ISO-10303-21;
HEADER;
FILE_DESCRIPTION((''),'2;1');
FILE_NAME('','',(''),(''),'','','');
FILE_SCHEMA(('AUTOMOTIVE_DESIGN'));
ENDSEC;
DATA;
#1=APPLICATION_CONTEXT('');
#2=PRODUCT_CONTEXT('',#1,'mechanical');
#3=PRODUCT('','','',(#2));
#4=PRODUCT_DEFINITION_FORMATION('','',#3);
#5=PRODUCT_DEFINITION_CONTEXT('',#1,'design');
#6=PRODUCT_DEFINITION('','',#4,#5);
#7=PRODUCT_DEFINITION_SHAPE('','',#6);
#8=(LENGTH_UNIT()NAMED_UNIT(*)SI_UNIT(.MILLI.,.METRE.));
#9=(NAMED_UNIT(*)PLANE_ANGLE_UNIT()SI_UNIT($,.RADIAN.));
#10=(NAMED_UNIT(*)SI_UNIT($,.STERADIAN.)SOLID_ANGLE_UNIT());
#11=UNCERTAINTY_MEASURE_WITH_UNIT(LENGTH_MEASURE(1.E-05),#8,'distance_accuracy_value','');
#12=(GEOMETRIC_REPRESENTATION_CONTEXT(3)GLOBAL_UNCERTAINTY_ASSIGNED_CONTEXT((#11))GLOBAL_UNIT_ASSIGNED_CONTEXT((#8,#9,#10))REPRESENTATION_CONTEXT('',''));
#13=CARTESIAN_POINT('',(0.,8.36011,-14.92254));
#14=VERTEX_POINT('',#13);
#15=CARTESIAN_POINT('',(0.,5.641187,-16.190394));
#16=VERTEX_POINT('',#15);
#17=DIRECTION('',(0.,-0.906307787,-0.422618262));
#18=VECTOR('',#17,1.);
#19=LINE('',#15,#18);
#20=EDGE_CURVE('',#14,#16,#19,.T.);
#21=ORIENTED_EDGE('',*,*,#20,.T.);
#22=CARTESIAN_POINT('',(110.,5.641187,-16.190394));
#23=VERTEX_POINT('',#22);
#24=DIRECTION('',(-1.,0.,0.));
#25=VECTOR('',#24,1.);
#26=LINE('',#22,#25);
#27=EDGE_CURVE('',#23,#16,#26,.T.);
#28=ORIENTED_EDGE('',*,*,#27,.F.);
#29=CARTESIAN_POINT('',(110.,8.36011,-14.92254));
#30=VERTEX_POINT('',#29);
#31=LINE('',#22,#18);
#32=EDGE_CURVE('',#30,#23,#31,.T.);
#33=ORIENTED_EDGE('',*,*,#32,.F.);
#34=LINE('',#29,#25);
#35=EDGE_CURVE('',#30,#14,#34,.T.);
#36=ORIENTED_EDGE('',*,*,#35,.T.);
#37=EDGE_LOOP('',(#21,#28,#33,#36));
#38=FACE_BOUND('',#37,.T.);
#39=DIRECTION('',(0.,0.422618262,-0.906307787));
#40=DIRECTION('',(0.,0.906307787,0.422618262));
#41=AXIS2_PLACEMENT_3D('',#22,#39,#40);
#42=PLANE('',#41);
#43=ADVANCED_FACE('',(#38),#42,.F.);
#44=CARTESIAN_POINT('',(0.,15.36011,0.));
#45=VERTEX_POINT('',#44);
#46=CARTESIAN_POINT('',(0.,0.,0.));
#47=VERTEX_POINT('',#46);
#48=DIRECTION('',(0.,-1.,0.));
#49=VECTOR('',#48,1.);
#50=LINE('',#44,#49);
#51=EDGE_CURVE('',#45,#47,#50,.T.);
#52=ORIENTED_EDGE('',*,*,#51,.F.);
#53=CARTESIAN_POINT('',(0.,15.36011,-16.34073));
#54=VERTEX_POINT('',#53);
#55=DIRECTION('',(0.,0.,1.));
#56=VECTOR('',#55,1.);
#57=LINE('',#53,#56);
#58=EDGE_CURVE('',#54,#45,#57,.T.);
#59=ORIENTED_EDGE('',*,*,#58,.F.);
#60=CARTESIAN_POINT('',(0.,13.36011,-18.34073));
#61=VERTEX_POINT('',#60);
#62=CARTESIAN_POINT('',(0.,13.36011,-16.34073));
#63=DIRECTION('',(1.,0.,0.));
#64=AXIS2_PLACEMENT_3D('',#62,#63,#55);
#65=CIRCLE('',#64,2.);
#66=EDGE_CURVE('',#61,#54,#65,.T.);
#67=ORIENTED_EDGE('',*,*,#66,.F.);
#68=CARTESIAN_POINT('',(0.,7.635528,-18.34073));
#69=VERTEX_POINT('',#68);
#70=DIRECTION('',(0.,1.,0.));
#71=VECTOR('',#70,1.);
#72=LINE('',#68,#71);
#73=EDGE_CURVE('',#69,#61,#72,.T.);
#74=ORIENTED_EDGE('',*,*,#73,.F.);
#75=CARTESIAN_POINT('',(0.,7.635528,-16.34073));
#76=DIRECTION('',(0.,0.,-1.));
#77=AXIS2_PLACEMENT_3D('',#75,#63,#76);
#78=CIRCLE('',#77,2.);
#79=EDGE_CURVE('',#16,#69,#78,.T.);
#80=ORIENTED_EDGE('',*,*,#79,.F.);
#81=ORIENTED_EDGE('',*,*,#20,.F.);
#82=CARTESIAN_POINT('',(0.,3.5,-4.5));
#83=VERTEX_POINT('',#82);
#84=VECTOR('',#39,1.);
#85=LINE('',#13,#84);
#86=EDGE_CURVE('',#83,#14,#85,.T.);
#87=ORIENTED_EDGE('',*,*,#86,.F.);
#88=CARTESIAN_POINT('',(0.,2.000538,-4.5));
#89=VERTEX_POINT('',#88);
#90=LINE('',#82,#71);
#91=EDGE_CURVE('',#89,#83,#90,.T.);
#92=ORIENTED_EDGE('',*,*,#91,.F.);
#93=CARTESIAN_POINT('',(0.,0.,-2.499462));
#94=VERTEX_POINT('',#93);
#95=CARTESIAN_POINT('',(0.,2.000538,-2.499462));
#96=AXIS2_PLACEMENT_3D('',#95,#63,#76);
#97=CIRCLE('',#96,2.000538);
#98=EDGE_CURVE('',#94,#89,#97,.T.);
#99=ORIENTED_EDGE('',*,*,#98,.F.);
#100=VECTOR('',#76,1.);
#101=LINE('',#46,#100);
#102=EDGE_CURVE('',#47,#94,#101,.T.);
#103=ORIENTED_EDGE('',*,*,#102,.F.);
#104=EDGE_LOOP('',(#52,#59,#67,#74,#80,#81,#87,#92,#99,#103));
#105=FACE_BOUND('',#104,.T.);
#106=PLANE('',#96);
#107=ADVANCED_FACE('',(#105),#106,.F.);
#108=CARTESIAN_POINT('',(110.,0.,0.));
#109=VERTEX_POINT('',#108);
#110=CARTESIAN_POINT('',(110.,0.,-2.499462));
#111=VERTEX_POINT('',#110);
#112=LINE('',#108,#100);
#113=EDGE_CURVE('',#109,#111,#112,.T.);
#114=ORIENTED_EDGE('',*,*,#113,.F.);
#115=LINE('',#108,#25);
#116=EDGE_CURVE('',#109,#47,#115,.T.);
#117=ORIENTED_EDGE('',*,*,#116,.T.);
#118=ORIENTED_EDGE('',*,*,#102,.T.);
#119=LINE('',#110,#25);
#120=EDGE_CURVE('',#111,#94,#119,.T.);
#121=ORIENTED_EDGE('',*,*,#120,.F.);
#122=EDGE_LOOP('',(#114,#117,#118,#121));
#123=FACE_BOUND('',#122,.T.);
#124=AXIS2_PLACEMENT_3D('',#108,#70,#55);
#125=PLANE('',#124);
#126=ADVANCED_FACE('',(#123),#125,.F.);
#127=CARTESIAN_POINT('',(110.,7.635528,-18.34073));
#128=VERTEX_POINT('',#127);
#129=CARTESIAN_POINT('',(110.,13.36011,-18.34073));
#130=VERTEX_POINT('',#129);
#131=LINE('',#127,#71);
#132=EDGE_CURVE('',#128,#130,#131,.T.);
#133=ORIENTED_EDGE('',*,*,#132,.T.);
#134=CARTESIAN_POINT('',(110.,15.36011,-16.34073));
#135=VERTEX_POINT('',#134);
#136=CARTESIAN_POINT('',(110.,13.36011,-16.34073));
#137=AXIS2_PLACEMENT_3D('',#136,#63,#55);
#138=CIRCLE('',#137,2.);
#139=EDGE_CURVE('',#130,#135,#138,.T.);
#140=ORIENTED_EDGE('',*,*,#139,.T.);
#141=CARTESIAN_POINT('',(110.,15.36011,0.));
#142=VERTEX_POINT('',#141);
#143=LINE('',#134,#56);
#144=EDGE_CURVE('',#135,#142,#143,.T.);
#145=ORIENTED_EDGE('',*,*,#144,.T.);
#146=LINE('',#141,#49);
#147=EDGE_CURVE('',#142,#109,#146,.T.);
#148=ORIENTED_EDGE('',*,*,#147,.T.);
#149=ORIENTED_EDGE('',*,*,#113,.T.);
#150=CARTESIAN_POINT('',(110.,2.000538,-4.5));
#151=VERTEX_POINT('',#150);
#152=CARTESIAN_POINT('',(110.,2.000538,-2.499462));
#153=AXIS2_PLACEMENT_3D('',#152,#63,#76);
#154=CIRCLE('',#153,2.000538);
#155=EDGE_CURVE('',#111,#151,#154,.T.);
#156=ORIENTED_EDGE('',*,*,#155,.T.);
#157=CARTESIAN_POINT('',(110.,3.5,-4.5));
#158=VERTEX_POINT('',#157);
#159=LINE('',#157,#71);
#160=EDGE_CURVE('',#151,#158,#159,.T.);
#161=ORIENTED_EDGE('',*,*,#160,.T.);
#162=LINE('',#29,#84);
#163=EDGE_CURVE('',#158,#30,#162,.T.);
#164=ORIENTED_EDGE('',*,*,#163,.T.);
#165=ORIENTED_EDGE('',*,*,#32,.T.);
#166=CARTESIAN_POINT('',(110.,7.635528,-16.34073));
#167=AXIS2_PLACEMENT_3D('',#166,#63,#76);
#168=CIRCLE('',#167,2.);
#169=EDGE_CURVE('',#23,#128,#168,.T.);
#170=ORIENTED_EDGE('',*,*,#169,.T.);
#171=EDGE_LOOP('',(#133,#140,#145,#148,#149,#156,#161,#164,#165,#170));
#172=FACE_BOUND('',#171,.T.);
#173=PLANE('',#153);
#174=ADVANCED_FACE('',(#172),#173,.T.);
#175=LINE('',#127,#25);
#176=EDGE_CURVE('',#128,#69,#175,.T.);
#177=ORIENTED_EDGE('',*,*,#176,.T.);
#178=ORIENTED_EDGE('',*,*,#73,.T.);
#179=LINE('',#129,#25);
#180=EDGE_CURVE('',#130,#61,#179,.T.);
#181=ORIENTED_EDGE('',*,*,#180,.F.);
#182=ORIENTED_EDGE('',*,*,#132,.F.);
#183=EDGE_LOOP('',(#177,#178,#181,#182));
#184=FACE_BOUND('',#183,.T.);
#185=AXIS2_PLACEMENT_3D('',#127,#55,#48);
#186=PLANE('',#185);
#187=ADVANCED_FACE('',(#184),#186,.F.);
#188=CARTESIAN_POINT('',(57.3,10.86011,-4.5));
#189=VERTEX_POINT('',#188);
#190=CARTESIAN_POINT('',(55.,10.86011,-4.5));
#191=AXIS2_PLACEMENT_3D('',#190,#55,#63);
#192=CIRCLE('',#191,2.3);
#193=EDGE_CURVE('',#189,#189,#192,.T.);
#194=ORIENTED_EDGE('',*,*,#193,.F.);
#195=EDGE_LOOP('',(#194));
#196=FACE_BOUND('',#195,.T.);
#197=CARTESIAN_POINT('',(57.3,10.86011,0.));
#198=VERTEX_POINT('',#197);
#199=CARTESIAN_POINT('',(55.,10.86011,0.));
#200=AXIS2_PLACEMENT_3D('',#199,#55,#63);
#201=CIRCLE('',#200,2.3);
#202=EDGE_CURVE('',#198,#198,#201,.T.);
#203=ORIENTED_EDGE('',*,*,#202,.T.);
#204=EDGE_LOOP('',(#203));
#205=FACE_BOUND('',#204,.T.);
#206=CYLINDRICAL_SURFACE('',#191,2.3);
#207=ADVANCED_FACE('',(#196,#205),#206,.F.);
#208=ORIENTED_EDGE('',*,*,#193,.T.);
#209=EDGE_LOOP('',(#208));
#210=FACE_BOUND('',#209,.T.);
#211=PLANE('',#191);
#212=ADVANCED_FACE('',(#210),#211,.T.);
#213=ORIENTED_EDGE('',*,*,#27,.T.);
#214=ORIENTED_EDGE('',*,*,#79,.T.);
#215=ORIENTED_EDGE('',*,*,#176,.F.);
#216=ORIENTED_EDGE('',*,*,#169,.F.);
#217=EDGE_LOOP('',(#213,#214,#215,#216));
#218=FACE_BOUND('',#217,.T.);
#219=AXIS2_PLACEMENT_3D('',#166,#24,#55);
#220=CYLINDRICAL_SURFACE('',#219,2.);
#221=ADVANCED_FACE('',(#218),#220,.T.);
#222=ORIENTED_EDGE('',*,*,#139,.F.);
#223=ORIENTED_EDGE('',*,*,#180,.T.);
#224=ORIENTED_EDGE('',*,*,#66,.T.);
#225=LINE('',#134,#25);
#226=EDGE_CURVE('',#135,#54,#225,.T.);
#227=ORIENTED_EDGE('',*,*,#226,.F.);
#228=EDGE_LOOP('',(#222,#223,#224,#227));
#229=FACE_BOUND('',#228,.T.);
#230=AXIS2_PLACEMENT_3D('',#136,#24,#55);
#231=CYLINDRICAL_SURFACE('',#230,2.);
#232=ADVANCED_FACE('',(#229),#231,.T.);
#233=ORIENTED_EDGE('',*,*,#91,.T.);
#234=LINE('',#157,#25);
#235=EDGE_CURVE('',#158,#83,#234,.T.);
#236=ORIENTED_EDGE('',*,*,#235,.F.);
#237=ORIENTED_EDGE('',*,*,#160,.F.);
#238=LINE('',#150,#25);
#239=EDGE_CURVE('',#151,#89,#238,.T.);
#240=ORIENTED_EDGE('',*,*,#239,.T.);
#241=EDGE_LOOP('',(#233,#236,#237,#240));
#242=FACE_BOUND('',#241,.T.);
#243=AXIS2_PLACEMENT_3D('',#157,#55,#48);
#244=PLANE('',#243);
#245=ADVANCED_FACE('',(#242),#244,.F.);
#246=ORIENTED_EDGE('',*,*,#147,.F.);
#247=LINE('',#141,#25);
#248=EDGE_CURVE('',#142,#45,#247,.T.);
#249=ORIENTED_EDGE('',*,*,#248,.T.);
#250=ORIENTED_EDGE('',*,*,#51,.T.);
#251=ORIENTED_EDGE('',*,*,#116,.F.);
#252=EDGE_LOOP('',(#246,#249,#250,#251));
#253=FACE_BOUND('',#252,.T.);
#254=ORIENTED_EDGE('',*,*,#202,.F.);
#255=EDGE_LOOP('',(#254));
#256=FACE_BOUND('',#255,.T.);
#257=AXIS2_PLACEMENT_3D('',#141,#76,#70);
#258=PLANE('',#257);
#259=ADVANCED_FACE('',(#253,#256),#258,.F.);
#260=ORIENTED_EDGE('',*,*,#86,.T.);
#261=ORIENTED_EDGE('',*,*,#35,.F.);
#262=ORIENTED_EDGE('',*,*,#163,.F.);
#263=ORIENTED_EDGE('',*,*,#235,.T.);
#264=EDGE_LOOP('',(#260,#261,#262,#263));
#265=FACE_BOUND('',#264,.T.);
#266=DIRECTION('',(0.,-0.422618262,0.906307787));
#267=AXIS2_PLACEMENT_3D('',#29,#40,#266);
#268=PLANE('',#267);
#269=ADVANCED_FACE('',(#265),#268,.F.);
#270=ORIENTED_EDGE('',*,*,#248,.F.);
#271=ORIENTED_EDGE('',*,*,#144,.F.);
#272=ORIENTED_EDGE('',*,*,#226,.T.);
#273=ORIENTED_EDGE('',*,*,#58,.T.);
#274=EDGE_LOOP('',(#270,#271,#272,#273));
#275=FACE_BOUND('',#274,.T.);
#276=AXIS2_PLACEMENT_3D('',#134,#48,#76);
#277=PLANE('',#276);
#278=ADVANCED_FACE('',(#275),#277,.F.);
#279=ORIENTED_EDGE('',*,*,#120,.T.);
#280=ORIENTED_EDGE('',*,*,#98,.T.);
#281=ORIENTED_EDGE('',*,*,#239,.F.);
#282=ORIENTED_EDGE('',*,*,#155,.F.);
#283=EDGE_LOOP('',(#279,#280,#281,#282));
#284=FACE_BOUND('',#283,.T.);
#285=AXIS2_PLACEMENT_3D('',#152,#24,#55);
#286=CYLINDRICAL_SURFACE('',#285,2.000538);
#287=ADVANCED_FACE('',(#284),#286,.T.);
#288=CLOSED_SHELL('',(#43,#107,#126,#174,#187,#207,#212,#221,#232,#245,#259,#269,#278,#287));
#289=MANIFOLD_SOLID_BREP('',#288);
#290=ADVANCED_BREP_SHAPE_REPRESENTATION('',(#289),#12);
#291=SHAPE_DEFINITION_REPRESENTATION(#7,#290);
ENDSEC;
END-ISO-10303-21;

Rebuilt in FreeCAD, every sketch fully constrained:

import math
import FreeCAD as App
import Part
import Sketcher

V = App.Vector
Q = App.Units.Quantity

doc = App.newDocument("Part")
body = doc.addObject("PartDesign::Body", "Body")

# Sketch on YZ plane
sketch1 = doc.addObject("Sketcher::SketchObject", "Sketch")
body.addObject(sketch1)
sketch1.AttachmentSupport = (doc.YZ_Plane, [""])
sketch1.MapMode = "FlatFace"
sketch1.addGeometry(Part.LineSegment(V(0, 0, 0), V(0, -2.5, 0)), False)
sketch1.addGeometry(Part.ArcOfCircle(Part.Circle(V(2, -2.5, 0), V(0, 0, 1), 2), math.radians(180), math.radians(270)), False)
sketch1.addGeometry(Part.LineSegment(V(2, -4.5, 0), V(3.5, -4.5, 0)), False)
sketch1.addGeometry(Part.LineSegment(V(3.5, -4.5, 0), V(8.4, -14.9, 0)), False)
sketch1.addGeometry(Part.LineSegment(V(8.4, -14.9, 0), V(5.6, -16.2, 0)), False)
sketch1.addGeometry(Part.ArcOfCircle(Part.Circle(V(7.6, -16.3, 0), V(0, 0, 1), 2), math.radians(176), math.radians(270)), False)
sketch1.addGeometry(Part.LineSegment(V(7.6, -18.3, 0), V(13.4, -18.3, 0)), False)
sketch1.addGeometry(Part.ArcOfCircle(Part.Circle(V(13.4, -16.3, 0), V(0, 0, 1), 2), math.radians(-90), math.radians(0)), False)
sketch1.addGeometry(Part.LineSegment(V(15.4, -16.3, 0), V(15.4, 0, 0)), False)
sketch1.addGeometry(Part.LineSegment(V(15.4, 0, 0), V(0, 0, 0)), False)
sketch1.addConstraint(Sketcher.Constraint("Tangent", 0, 2, 1, 1))
sketch1.addConstraint(Sketcher.Constraint("Tangent", 1, 2, 2, 1))
sketch1.addConstraint(Sketcher.Constraint("Coincident", 2, 2, 3, 1))
sketch1.addConstraint(Sketcher.Constraint("Coincident", 3, 2, 4, 1))
sketch1.addConstraint(Sketcher.Constraint("Coincident", 4, 2, 5, 1))
sketch1.addConstraint(Sketcher.Constraint("Tangent", 5, 2, 6, 1))
sketch1.addConstraint(Sketcher.Constraint("Tangent", 6, 2, 7, 1))
sketch1.addConstraint(Sketcher.Constraint("Tangent", 7, 2, 8, 1))
sketch1.addConstraint(Sketcher.Constraint("Coincident", 8, 2, 9, 1))
sketch1.addConstraint(Sketcher.Constraint("Coincident", 9, 2, 0, 1))
sketch1.addConstraint(Sketcher.Constraint("Vertical", 0))
sketch1.addConstraint(Sketcher.Constraint("Horizontal", 2))
sketch1.addConstraint(Sketcher.Constraint("Horizontal", 6))
sketch1.addConstraint(Sketcher.Constraint("Vertical", 8))
sketch1.addConstraint(Sketcher.Constraint("Horizontal", 9))
sketch1.addConstraint(Sketcher.Constraint("Coincident", 9, 2, -1, 1))
sketch1.addConstraint(Sketcher.Constraint("Equal", 5, 7))
sketch1.addConstraint(Sketcher.Constraint("Perpendicular", 3, 4))
sketch1.addConstraint(Sketcher.Constraint("Radius", 5, 2.0))
sketch1.addConstraint(Sketcher.Constraint("Angle", 3, Q("-65 deg")))
sketch1.addConstraint(Sketcher.Constraint("Distance", 4, 3.0))
sketch1.addConstraint(Sketcher.Constraint("DistanceX", 3, 2, 7, 3, 5.0))
sketch1.addConstraint(Sketcher.Constraint("Distance", 3, 11.5))
sketch1.addConstraint(Sketcher.Constraint("DistanceY", 1, 2, -1, 1, 4.5))
sketch1.addConstraint(Sketcher.Constraint("DistanceX", -1, 1, 2, 2, 3.5))
sketch1.addConstraint(Sketcher.Constraint("Radius", 1, 2.000538))
sketch1.addConstraint(Sketcher.Constraint("DistanceX", 6, 1, 6, 2, 5.724582))
pad1 = doc.addObject("PartDesign::Pad", "Pad")
body.addObject(pad1)
pad1.Profile = sketch1
pad1.Length = 110

# Sketch on XY plane
sketch2 = doc.addObject("Sketcher::SketchObject", "Sketch001")
body.addObject(sketch2)
sketch2.AttachmentSupport = (doc.XY_Plane, [""])
sketch2.MapMode = "FlatFace"
sketch2.addGeometry(Part.Circle(V(55, 10.9, 0), V(0, 0, 1), 2.3), False)
sketch2.addConstraint(Sketcher.Constraint("Diameter", 0, 4.6))
sketch2.addConstraint(Sketcher.Constraint("DistanceX", -1, 1, 0, 3, 55.0))
sketch2.addConstraint(Sketcher.Constraint("DistanceY", -1, 1, 0, 3, 10.86011))
pocket1 = doc.addObject("PartDesign::Pocket", "Pocket")
body.addObject(pocket1)
pocket1.Profile = sketch2
pocket1.Length = 4.5

doc.recompute()
